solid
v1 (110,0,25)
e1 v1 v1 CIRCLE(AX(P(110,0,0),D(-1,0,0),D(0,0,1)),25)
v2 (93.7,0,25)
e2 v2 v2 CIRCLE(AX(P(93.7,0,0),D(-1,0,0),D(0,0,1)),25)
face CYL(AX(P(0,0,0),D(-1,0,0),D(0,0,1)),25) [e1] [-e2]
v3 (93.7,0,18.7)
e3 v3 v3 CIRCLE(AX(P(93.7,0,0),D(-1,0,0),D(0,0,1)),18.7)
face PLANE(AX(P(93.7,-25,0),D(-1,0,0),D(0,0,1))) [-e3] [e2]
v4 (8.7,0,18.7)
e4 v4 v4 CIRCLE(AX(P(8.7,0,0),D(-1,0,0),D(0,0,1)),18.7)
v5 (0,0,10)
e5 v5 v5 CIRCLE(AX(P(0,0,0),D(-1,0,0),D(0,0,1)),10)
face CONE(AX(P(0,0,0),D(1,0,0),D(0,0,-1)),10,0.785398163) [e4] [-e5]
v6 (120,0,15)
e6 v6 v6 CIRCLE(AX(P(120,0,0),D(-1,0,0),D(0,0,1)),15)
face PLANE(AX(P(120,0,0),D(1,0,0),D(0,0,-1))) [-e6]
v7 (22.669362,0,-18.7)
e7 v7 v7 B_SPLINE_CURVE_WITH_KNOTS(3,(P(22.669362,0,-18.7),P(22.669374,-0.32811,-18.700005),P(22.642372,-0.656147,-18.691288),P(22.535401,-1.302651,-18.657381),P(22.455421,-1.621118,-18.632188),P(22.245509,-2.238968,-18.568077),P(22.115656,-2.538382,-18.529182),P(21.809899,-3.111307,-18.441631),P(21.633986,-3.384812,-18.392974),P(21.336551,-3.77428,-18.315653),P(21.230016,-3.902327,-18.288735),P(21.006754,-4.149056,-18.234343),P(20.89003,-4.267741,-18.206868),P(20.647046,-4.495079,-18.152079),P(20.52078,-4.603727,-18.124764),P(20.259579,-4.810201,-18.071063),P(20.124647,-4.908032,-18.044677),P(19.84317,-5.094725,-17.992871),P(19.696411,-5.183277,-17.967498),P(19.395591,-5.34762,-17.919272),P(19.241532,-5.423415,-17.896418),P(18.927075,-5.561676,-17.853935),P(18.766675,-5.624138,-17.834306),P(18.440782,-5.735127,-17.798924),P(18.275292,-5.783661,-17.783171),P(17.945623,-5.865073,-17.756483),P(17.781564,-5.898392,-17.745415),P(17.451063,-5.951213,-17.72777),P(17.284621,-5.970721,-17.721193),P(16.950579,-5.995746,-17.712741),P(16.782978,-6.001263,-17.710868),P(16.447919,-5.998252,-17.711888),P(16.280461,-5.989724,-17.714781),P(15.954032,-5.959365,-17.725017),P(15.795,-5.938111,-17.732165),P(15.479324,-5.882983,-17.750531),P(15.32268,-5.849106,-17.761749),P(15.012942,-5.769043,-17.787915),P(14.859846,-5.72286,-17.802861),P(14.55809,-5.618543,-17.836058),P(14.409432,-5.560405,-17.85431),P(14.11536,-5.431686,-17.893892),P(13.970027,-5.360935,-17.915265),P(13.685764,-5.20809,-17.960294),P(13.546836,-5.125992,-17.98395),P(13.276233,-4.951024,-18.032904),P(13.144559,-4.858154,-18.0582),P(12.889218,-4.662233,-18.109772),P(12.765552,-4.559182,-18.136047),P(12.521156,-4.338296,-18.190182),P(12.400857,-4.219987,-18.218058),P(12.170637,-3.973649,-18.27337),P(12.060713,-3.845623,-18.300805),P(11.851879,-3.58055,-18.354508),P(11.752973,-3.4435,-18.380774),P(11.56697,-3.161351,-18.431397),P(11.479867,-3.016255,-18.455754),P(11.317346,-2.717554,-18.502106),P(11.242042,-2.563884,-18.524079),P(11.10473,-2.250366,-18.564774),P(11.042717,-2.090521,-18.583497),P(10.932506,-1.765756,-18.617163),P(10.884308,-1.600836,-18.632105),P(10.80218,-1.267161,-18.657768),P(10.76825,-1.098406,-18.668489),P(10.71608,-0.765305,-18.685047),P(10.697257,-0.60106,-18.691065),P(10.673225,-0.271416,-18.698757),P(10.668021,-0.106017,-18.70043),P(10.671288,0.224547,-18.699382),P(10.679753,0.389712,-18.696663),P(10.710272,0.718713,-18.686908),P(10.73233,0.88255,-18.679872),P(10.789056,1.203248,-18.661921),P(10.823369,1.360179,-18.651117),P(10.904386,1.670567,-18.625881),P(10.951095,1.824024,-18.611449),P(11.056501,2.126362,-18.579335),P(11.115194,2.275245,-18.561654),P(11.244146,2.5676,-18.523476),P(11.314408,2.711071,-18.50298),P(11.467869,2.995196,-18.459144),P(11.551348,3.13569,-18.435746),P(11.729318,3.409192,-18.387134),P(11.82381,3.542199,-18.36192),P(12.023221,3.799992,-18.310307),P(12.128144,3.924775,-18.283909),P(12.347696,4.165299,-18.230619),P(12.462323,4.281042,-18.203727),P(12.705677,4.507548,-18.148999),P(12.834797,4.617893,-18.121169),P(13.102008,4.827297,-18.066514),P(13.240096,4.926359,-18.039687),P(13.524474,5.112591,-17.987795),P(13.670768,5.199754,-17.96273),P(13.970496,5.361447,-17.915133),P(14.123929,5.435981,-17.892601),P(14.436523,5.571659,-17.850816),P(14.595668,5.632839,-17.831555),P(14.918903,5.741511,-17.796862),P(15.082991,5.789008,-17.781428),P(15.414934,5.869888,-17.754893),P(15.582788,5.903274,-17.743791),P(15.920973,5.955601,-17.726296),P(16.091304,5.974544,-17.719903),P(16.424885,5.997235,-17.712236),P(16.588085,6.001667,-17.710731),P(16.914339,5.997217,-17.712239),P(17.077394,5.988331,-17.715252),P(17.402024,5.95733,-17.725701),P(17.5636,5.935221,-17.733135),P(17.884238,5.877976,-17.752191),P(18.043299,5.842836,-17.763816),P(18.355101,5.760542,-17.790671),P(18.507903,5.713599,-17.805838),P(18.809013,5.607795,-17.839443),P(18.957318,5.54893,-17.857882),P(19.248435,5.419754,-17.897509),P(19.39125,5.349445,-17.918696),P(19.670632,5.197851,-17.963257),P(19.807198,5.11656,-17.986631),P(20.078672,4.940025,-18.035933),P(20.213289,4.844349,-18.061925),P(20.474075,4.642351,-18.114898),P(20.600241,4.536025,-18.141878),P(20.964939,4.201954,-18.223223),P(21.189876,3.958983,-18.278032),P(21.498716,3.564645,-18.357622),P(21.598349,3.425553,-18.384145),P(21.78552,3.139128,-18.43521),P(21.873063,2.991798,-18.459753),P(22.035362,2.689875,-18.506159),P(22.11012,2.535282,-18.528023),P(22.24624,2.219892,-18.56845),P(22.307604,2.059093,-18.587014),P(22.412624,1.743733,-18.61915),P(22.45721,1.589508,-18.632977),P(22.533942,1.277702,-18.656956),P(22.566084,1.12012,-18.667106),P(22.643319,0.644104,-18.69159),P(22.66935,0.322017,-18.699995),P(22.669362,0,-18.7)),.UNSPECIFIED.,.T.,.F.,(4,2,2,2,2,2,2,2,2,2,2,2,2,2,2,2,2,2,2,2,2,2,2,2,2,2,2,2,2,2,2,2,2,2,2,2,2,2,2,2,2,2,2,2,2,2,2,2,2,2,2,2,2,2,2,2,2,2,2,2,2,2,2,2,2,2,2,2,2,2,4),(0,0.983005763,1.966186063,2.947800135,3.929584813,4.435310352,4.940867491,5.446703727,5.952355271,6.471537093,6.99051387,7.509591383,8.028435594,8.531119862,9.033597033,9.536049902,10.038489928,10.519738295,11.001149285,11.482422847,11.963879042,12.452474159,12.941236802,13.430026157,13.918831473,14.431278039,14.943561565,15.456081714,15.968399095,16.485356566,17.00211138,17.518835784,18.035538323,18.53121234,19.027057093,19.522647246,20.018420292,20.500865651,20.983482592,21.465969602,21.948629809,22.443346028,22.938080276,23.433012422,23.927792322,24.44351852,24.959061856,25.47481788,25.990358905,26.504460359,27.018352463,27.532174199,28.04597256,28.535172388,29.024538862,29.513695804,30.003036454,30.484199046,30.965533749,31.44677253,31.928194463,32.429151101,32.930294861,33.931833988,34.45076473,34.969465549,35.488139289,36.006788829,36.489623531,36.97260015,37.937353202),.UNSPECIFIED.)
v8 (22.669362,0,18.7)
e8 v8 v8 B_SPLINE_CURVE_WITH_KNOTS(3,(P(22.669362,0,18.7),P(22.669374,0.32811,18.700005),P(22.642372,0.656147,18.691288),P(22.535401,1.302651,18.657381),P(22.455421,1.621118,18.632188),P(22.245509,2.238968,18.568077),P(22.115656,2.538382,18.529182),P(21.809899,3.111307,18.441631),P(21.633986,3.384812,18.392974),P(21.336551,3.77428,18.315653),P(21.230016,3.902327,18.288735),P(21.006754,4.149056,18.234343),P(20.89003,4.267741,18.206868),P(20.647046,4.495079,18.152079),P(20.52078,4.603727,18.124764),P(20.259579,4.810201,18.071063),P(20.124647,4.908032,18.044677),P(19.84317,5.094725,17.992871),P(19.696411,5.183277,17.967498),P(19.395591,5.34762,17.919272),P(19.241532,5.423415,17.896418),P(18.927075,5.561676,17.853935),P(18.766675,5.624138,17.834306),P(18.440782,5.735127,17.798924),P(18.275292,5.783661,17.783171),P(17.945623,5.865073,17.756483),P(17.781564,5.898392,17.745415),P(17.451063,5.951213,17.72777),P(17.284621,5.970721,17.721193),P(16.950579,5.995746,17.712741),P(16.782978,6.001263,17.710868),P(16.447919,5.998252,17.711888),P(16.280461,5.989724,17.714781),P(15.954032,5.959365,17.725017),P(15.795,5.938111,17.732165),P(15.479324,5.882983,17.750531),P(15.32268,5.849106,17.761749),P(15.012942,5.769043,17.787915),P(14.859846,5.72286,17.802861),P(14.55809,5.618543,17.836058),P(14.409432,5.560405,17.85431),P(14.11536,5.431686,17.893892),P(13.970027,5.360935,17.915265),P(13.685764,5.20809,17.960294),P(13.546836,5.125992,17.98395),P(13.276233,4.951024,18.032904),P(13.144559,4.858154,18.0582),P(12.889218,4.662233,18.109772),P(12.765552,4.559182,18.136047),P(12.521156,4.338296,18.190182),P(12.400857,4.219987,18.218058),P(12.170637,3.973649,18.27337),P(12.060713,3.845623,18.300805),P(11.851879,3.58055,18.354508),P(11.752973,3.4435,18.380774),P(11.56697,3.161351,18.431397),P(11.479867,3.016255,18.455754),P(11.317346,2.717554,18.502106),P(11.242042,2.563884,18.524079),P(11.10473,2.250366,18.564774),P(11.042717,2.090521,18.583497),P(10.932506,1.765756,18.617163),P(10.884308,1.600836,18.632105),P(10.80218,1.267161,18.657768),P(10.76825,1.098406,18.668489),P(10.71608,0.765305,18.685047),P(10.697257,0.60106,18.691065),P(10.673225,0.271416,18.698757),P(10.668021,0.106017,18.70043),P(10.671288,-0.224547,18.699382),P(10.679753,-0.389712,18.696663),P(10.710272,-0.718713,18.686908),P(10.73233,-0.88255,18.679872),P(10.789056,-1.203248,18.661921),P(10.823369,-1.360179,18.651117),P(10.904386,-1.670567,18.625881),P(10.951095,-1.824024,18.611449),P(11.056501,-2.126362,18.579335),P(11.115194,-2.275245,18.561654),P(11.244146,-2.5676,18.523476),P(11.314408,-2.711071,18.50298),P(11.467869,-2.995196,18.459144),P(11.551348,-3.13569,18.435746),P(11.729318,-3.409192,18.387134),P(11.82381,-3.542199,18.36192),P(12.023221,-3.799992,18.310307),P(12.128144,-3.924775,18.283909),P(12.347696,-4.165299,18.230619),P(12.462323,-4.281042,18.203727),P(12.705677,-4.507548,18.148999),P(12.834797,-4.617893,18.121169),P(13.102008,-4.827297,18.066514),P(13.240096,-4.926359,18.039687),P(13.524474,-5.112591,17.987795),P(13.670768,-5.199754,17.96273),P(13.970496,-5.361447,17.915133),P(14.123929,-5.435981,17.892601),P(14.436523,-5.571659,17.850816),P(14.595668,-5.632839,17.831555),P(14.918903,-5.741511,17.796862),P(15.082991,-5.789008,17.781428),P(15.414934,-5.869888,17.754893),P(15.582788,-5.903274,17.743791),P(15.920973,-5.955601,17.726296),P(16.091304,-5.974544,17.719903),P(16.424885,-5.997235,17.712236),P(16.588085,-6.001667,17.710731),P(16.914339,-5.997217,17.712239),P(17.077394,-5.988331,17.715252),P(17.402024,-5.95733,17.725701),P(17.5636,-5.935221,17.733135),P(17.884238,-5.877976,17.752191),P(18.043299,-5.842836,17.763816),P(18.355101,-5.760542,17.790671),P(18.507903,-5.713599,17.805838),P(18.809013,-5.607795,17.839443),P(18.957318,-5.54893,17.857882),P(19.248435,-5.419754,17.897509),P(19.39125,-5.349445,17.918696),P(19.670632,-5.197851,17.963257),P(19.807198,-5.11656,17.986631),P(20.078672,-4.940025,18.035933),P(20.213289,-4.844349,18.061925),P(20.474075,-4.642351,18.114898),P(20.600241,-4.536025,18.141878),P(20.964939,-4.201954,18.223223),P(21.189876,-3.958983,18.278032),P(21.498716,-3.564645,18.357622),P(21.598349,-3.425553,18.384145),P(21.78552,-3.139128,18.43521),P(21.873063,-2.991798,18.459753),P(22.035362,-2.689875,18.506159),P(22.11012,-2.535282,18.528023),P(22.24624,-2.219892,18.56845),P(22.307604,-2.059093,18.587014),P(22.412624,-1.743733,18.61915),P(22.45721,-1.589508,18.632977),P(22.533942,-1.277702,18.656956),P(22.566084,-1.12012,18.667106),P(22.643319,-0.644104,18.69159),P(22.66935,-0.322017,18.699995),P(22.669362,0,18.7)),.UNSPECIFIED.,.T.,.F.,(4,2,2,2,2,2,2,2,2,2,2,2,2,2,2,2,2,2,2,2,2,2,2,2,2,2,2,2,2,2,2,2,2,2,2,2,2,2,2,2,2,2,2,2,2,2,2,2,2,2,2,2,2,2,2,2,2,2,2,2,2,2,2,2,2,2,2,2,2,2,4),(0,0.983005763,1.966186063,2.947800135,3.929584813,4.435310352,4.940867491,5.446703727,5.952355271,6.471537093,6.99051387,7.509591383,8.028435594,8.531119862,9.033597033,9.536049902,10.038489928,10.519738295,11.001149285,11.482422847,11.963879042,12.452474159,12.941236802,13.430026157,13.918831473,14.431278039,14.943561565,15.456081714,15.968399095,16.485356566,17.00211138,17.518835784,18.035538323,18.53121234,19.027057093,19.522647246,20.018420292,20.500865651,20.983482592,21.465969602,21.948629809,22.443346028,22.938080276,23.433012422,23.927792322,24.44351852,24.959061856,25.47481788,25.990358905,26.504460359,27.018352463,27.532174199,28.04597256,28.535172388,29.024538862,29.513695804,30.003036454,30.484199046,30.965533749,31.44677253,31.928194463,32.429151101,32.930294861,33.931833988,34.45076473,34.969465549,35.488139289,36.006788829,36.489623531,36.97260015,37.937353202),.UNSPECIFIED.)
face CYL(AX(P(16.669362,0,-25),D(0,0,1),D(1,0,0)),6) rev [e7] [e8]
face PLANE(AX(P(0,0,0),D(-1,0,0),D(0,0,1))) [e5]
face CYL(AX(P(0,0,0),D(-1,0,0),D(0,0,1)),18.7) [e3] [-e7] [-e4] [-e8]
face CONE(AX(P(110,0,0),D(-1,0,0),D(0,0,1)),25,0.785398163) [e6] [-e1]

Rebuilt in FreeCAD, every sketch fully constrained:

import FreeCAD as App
import Part
import Sketcher
Q = App.Units.Quantity


def add_polygon(sketch, points):
    """Adds a closed chain of lines whose ends are joined by coincident constraints."""
    first, n = sketch.GeometryCount, len(points)
    for a, b in zip(points, points[1:] + points[:1]):
        sketch.addGeometry(Part.LineSegment(App.Vector(*a, 0), App.Vector(*b, 0)), False)
    for i in range(n):
        sketch.addConstraint(Sketcher.Constraint("Coincident", first + i, 2, first + (i + 1) % n, 1))

doc = App.newDocument("Part")
body = doc.addObject("PartDesign::Body", "Body")

# Sketch on XY plane
sketch1 = doc.addObject("Sketcher::SketchObject", "Sketch")
body.addObject(sketch1)
sketch1.AttachmentSupport = (doc.XY_Plane, [""])
sketch1.MapMode = "FlatFace"
add_polygon(sketch1, [(120, 0), (0, 0), (0, -10), (9, -19), (94, -19), (94, -25), (110, -25), (120, -15)])  # lines 0-7
sketch1.addConstraint([
    Sketcher.Constraint("Horizontal", 0),
    Sketcher.Constraint("Vertical", 1),
    Sketcher.Constraint("Horizontal", 3),
    Sketcher.Constraint("Vertical", 4),
    Sketcher.Constraint("Horizontal", 5),
    Sketcher.Constraint("Vertical", 7),
    Sketcher.Constraint("Coincident", 0, 2, -1, 1),
    Sketcher.Constraint("Perpendicular", 2, 6),
    Sketcher.Constraint("DistanceX", 0, 2, 0, 1, Q("120 mm")),
    Sketcher.Constraint("DistanceX", 3, 1, 3, 2, Q("85 mm")),
    Sketcher.Constraint("DistanceY", 1, 2, 1, 1, Q("10 mm")),
    Sketcher.Constraint("DistanceY", 7, 1, 7, 2, Q("15 mm")),
    Sketcher.Constraint("Angle", 2, Q("-45 deg")),
    Sketcher.Constraint("DistanceX", 5, 1, 5, 2, Q("16.3 mm")),
    Sketcher.Constraint("DistanceY", 4, 2, 4, 1, Q("6.3 mm")),
])
revolution = doc.addObject("PartDesign::Revolution", "Revolution")
body.addObject(revolution)
revolution.Profile = sketch1
revolution.ReferenceAxis = (sketch1, ["H_Axis"])
revolution.Angle = 360

# Sketch on XY plane
sketch2 = doc.addObject("Sketcher::SketchObject", "Sketch001")
body.addObject(sketch2)
sketch2.AttachmentSupport = (doc.XY_Plane, [""])
sketch2.MapMode = "FlatFace"
sketch2.addGeometry(Part.Circle(App.Vector(17, 0, 0), App.Vector(0, 0, 1), 6), False)
sketch2.addConstraint([
    Sketcher.Constraint("PointOnObject", 0, 3, -1),
    Sketcher.Constraint("Diameter", 0, Q("12 mm")),
    Sketcher.Constraint("DistanceX", -1, 1, 0, 3, Q("16.669362 mm")),
])
pocket1 = doc.addObject("PartDesign::Pocket", "Pocket")
body.addObject(pocket1)
pocket1.Profile = sketch2
pocket1.Type = "ThroughAll"
pocket1.Midplane = True

doc.recompute()
